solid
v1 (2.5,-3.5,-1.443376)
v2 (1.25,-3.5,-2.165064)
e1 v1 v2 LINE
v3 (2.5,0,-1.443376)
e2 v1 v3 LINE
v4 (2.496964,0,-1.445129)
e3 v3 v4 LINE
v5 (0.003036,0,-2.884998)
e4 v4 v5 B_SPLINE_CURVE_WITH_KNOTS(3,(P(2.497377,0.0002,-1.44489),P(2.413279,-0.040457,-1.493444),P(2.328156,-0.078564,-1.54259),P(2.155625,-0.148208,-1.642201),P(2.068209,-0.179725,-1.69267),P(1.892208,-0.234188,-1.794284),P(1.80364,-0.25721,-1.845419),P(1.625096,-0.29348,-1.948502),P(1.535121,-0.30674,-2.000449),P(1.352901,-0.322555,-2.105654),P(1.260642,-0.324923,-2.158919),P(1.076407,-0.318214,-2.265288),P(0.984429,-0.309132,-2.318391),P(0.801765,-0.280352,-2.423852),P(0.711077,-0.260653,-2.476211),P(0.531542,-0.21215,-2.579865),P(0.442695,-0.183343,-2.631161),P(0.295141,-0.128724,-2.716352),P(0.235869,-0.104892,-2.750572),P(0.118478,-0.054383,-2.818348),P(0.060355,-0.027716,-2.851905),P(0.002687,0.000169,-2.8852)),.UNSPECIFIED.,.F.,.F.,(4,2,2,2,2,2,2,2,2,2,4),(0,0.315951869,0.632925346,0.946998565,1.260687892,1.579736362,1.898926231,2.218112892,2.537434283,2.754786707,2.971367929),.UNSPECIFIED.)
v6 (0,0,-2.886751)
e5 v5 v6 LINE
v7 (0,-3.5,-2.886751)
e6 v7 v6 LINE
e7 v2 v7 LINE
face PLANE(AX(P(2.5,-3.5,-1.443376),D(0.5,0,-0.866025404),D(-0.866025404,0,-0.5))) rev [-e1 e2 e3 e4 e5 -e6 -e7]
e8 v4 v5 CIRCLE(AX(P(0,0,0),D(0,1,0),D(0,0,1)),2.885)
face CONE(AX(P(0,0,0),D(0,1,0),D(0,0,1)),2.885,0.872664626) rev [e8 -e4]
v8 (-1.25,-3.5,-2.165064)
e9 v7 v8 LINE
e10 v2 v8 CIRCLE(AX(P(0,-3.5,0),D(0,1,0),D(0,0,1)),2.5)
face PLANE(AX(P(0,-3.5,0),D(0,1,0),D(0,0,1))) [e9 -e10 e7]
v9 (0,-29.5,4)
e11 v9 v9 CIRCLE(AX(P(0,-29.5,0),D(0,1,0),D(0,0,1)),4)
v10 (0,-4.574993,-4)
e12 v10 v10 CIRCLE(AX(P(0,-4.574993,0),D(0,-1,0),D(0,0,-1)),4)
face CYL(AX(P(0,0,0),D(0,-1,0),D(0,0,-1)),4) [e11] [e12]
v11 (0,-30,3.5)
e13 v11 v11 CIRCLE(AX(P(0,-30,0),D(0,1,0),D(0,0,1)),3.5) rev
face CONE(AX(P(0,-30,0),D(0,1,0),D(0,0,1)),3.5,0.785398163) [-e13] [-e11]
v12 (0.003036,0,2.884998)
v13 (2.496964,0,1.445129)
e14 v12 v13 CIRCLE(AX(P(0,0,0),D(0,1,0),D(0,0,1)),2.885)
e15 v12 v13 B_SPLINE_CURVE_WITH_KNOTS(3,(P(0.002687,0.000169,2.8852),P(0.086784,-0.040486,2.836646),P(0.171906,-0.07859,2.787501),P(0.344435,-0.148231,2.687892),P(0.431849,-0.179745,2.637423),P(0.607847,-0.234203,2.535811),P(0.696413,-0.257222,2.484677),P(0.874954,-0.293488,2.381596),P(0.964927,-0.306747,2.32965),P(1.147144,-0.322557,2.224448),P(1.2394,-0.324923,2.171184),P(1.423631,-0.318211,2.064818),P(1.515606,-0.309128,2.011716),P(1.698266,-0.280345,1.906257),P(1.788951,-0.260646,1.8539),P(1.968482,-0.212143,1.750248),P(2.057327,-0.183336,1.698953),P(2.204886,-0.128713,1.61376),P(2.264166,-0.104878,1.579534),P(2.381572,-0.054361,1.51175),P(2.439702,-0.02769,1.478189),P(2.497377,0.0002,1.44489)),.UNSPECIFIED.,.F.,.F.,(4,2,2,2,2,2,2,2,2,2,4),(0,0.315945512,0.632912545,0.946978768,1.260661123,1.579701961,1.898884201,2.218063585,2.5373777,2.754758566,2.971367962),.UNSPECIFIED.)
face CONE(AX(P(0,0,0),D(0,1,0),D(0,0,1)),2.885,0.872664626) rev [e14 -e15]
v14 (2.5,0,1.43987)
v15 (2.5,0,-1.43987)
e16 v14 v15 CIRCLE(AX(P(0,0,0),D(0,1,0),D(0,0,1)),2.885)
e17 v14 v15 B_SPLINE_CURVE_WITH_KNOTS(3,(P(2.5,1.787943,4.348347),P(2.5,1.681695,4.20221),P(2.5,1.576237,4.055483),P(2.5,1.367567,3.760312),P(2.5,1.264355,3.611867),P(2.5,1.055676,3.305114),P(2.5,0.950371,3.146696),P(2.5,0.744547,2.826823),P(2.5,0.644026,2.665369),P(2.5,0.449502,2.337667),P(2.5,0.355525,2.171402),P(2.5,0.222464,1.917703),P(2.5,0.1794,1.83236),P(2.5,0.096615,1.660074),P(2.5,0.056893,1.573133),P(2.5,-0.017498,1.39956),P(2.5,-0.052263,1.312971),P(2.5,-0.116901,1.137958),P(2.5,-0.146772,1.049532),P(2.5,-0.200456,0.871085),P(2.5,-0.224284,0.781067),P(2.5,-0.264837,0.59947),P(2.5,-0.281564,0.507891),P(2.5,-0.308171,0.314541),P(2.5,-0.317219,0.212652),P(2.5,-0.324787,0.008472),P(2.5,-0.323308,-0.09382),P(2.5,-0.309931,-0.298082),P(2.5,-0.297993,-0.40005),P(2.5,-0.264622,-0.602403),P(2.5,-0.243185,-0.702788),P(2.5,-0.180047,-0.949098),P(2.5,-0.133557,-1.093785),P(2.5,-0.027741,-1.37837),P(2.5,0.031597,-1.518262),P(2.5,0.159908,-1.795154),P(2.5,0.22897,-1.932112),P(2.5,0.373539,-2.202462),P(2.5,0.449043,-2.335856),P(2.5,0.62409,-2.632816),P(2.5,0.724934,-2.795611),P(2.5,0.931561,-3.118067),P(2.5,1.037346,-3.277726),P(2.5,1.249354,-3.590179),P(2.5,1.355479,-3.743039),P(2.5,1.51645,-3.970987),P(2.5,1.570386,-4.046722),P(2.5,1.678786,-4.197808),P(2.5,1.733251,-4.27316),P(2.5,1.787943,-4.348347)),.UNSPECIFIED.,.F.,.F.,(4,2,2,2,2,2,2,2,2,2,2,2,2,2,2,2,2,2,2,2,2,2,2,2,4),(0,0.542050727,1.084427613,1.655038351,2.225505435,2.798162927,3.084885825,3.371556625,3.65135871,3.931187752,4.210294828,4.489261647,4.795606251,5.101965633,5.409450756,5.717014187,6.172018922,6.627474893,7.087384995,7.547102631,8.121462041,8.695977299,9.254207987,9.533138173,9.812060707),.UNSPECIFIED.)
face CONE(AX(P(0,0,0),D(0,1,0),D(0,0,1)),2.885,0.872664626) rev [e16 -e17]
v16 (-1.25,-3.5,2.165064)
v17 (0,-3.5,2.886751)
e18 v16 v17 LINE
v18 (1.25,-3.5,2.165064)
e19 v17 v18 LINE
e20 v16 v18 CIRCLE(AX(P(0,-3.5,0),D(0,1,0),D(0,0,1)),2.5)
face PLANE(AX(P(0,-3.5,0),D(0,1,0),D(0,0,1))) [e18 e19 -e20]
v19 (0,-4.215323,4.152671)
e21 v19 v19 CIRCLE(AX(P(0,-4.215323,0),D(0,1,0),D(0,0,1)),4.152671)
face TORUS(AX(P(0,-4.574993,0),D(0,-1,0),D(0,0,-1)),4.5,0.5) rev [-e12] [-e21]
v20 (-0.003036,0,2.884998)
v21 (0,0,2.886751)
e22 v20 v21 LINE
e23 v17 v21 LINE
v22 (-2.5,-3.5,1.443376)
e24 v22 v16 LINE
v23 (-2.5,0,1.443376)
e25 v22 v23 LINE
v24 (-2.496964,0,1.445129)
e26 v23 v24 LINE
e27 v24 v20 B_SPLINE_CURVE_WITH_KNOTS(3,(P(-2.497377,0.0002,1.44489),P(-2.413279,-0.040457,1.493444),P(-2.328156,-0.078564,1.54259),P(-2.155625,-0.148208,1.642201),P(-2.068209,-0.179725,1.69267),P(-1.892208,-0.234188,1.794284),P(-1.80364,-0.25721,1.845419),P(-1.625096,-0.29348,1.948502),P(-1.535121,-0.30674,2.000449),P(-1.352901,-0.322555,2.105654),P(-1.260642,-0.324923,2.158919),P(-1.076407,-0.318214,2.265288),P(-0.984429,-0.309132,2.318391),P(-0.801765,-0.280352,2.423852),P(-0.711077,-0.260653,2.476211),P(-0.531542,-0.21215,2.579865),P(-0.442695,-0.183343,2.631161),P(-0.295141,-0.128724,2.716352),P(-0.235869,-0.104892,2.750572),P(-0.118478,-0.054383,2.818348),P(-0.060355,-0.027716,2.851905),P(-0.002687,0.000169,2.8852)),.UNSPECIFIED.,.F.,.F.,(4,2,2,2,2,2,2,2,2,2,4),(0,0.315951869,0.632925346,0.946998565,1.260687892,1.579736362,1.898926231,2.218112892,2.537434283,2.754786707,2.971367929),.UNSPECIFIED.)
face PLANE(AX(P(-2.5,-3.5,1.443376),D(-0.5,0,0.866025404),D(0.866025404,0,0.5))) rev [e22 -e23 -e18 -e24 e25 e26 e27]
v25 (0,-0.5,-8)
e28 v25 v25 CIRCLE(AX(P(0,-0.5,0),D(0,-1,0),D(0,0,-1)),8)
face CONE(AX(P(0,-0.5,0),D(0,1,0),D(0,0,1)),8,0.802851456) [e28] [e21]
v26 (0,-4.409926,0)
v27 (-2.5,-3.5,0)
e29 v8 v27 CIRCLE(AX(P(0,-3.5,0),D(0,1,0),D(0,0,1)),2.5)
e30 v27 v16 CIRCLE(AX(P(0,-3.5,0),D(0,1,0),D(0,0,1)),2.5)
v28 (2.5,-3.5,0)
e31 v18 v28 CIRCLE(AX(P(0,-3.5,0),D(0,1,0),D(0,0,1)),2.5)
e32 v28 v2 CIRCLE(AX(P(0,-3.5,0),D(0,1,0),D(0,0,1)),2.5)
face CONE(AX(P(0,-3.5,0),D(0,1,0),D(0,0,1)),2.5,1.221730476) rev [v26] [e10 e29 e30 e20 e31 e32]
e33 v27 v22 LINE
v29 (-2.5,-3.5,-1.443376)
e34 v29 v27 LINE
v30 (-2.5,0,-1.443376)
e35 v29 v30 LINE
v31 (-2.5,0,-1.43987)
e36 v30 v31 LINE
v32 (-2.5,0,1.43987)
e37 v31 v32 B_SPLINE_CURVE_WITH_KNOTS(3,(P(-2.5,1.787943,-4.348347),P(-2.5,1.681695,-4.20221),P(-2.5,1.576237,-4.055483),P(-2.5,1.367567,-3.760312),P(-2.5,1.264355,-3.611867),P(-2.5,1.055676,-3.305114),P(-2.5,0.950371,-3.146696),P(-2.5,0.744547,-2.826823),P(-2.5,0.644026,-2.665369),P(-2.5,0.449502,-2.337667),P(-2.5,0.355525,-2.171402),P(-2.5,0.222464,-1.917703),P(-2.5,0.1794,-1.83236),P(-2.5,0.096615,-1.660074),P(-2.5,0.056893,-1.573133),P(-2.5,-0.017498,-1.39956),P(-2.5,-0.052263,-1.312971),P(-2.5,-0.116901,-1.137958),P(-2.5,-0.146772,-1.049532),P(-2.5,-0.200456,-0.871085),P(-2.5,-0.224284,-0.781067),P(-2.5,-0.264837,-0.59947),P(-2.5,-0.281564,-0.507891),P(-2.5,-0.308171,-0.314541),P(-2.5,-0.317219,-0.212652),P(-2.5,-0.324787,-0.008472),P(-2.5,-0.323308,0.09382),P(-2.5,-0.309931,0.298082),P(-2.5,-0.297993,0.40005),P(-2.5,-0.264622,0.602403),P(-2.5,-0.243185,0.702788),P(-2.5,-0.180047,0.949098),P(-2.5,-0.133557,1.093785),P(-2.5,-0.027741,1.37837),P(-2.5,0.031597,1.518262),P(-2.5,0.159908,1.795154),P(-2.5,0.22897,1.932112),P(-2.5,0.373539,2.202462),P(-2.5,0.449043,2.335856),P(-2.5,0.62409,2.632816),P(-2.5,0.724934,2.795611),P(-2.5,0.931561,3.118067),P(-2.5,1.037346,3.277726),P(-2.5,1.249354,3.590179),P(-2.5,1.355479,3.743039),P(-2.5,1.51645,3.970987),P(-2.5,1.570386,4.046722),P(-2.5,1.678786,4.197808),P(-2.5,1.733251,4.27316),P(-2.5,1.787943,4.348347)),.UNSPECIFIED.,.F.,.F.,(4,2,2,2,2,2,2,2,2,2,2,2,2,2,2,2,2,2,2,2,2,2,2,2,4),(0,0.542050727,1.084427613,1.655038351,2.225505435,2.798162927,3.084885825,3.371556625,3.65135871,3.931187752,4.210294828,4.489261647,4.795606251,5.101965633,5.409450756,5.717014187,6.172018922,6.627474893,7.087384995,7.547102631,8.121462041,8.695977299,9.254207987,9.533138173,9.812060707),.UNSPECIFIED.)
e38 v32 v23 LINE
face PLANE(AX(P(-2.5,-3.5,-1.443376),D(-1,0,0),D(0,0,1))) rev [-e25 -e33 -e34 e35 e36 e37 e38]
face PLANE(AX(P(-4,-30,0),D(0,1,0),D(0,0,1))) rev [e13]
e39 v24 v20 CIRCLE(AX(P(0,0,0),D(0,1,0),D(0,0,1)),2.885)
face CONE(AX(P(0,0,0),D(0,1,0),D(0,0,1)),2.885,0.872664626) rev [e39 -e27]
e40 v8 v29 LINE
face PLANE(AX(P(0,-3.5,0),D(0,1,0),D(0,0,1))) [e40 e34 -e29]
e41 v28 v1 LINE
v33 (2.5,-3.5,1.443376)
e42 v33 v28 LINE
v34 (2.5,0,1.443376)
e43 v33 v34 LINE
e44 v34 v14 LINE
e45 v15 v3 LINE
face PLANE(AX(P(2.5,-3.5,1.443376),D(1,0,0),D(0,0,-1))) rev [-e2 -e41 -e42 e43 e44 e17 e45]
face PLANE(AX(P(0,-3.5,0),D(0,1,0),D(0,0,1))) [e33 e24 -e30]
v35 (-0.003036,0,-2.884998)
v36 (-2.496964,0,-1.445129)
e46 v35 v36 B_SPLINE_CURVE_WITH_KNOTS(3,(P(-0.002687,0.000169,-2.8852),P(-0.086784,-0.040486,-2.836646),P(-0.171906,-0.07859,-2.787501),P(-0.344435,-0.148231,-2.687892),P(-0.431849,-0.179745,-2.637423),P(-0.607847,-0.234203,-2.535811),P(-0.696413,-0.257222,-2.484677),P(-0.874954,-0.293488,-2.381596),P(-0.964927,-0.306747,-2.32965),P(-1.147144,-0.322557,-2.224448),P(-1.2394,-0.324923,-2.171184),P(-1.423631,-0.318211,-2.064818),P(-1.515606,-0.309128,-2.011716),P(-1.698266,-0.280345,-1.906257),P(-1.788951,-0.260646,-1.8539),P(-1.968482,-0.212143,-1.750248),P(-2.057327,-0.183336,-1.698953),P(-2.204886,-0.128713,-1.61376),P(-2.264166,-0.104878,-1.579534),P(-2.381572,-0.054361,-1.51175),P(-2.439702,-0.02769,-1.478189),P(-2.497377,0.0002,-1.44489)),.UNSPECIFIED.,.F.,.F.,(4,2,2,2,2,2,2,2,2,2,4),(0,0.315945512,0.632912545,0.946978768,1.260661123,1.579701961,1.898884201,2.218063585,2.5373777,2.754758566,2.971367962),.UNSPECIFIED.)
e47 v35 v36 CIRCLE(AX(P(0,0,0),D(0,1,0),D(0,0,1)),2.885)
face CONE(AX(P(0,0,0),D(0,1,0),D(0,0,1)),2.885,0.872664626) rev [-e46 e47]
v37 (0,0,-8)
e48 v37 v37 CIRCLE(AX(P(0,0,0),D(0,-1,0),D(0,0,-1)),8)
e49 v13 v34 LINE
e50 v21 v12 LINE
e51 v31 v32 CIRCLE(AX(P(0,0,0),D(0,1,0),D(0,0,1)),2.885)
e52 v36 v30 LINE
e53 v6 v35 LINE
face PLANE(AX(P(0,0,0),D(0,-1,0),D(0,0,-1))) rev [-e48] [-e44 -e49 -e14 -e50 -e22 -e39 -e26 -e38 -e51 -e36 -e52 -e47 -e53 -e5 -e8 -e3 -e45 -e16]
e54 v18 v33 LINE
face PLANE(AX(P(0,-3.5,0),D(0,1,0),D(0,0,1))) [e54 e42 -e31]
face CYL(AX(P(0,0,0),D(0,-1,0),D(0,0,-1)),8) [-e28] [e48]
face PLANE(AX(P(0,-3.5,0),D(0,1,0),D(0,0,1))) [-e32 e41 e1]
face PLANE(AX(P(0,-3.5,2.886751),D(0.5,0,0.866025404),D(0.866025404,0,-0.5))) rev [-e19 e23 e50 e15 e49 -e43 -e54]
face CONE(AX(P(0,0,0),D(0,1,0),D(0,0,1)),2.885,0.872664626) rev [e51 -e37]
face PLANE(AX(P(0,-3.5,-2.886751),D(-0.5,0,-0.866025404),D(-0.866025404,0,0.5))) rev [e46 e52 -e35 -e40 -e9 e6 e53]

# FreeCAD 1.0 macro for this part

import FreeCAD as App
import Part
import Sketcher

V = App.Vector
Q = App.Units.Quantity


def edges_at(feature, points):
    """Names of the edges that pass closest to the given points."""
    edges = feature.Shape.Edges
    near = lambda p: min(range(len(edges)), key=lambda i: edges[i].distToShape(Part.Vertex(*p))[0])
    return sorted({f"Edge{near(p) + 1}" for p in points})

doc = App.newDocument("Part")
params = doc.addObject("Spreadsheet::Sheet", "Params")
for row, (alias, value) in enumerate([
    ("sketch1_width", "8 mm"),
    ("sketch1_width2", "4 mm"),
    ("sketch1_height", "30 mm"),
    ("sketch1_height2", "0.5 mm"),
    ("revolution_angle", "360 deg"),
    ("pocket1_length", "3.5 mm"),
    ("groove_angle", "360 deg"),
    ("fillet_radius", "0.5 mm"),
    ("chamfer_size", "0.5 mm"),
], start=1):
    params.set(f"A{row}", alias)
    params.set(f"B{row}", "=" + value)
    params.setAlias(f"B{row}", alias)

body = doc.addObject("PartDesign::Body", "Body")

# Sketch on XY plane
sketch1 = doc.addObject("Sketcher::SketchObject", "Sketch")
body.addObject(sketch1)
sketch1.AttachmentSupport = (doc.XY_Plane, [""])
sketch1.MapMode = "FlatFace"
sketch1.addGeometry([
    Part.LineSegment(V(0, 0, 0), V(-8, 0, 0)),  # 0
    Part.LineSegment(V(-8, 0, 0), V(-8, -0.5, 0)),  # 1
    Part.LineSegment(V(-8, -0.5, 0), V(-4, -4.4, 0)),  # 2
    Part.LineSegment(V(-4, -4.4, 0), V(-4, -30, 0)),  # 3
    Part.LineSegment(V(-4, -30, 0), V(0, -30, 0)),  # 4
    Part.LineSegment(V(0, -30, 0), V(0, 0, 0)),  # 5
], False)
sketch1.addConstraint([
    Sketcher.Constraint("Coincident", 0, 2, 1, 1),
    Sketcher.Constraint("Coincident", 1, 2, 2, 1),
    Sketcher.Constraint("Coincident", 2, 2, 3, 1),
    Sketcher.Constraint("Coincident", 3, 2, 4, 1),
    Sketcher.Constraint("Coincident", 4, 2, 5, 1),
    Sketcher.Constraint("Coincident", 5, 2, 0, 1),
    Sketcher.Constraint("Horizontal", 0),
    Sketcher.Constraint("Vertical", 1),
    Sketcher.Constraint("Vertical", 3),
    Sketcher.Constraint("Horizontal", 4),
    Sketcher.Constraint("Vertical", 5),
    Sketcher.Constraint("Coincident", 5, 2, -1, 1),
    Sketcher.Constraint("DistanceX", 0, 2, 0, 1, 8.0),
    Sketcher.Constraint("DistanceX", 4, 1, 4, 2, 4.0),
    Sketcher.Constraint("DistanceY", 5, 1, 5, 2, 30.0),
    Sketcher.Constraint("Angle", 2, Q("-44 deg")),
    Sketcher.Constraint("DistanceY", 1, 2, 1, 1, 0.5),
])
sketch1.setExpression("Constraints[12]", "Params.sketch1_width")
sketch1.setExpression("Constraints[13]", "Params.sketch1_width2")
sketch1.setExpression("Constraints[14]", "Params.sketch1_height")
sketch1.setExpression("Constraints[16]", "Params.sketch1_height2")
revolution = doc.addObject("PartDesign::Revolution", "Revolution")
body.addObject(revolution)
revolution.Profile = sketch1
revolution.ReferenceAxis = (sketch1, ["V_Axis"])
revolution.setExpression("Angle", "Params.revolution_angle")

# Sketch on XZ plane
sketch2 = doc.addObject("Sketcher::SketchObject", "Sketch001")
body.addObject(sketch2)
sketch2.AttachmentSupport = (doc.XZ_Plane, [""])
sketch2.MapMode = "FlatFace"
sketch2.addGeometry([
    Part.LineSegment(V(0, -2.9, 0), V(-2.5, -1.4, 0)),  # 0
    Part.LineSegment(V(-2.5, -1.4, 0), V(-2.5, 1.4, 0)),  # 1
    Part.LineSegment(V(-2.5, 1.4, 0), V(0, 2.9, 0)),  # 2
    Part.LineSegment(V(0, 2.9, 0), V(2.5, 1.4, 0)),  # 3
    Part.LineSegment(V(2.5, 1.4, 0), V(2.5, -1.4, 0)),  # 4
    Part.LineSegment(V(2.5, -1.4, 0), V(0, -2.9, 0)),  # 5
], False)
sketch2.addConstraint([
    Sketcher.Constraint("Coincident", 0, 2, 1, 1),
    Sketcher.Constraint("Coincident", 1, 2, 2, 1),
    Sketcher.Constraint("Coincident", 2, 2, 3, 1),
    Sketcher.Constraint("Coincident", 3, 2, 4, 1),
    Sketcher.Constraint("Coincident", 4, 2, 5, 1),
    Sketcher.Constraint("Coincident", 5, 2, 0, 1),
    Sketcher.Constraint("Vertical", 1),
    Sketcher.Constraint("Vertical", 4),
    Sketcher.Constraint("Symmetric", 0, 2, 3, 2, -1, 1),
    Sketcher.Constraint("Symmetric", 2, 2, 5, 2, -1, 1),
    Sketcher.Constraint("PointOnObject", 2, 2, -2),
    Sketcher.Constraint("Parallel", 2, 5),
    Sketcher.Constraint("Horizontal", 1, 2, 3, 2),
    Sketcher.Constraint("Angle", 0, Q("150 deg")),
    Sketcher.Constraint("DistanceX", 1, 2, 3, 2, 5.0),
    Sketcher.Constraint("DistanceY", 1, 1, 1, 2, 2.886751),
])
pocket1 = doc.addObject("PartDesign::Pocket", "Pocket")
body.addObject(pocket1)
pocket1.Profile = sketch2
pocket1.setExpression("Length", "Params.pocket1_length")
pocket1.Reversed = True

# Sketch on XY plane
sketch3 = doc.addObject("Sketcher::SketchObject", "Sketch002")
body.addObject(sketch3)
sketch3.AttachmentSupport = (doc.XY_Plane, [""])
sketch3.MapMode = "FlatFace"
sketch3.addGeometry([
    Part.LineSegment(V(-2.9, 0, 0), V(-2.5, -0.3, 0)),  # 0
    Part.LineSegment(V(-2.5, -0.3, 0), V(-2.5, -3.5, 0)),  # 1
    Part.LineSegment(V(-2.5, -3.5, 0), V(0, -4.4, 0)),  # 2
    Part.LineSegment(V(0, -4.4, 0), V(0, 0, 0)),  # 3
    Part.LineSegment(V(0, 0, 0), V(-2.9, 0, 0)),  # 4
], False)
sketch3.addConstraint([
    Sketcher.Constraint("Coincident", 0, 2, 1, 1),
    Sketcher.Constraint("Coincident", 1, 2, 2, 1),
    Sketcher.Constraint("Coincident", 2, 2, 3, 1),
    Sketcher.Constraint("Coincident", 3, 2, 4, 1),
    Sketcher.Constraint("Coincident", 4, 2, 0, 1),
    Sketcher.Constraint("Vertical", 1),
    Sketcher.Constraint("Vertical", 3),
    Sketcher.Constraint("Horizontal", 4),
    Sketcher.Constraint("Coincident", 3, 2, -1, 1),
    Sketcher.Constraint("Angle", 0, Q("-40 deg")),
    Sketcher.Constraint("Angle", 2, Q("-20 deg")),
    Sketcher.Constraint("DistanceX", 0, 2, -1, 1, 2.5),
    Sketcher.Constraint("DistanceY", 1, 2, -1, 1, 3.5),
    Sketcher.Constraint("DistanceX", 4, 2, 4, 1, 2.885),
])
groove = doc.addObject("PartDesign::Groove", "Groove")
body.addObject(groove)
groove.Profile = sketch3
groove.ReferenceAxis = (sketch3, ["V_Axis"])
groove.setExpression("Angle", "Params.groove_angle")
doc.recompute()

fillet = doc.addObject("PartDesign::Fillet", "Fillet")
body.addObject(fillet)
fillet.Base = (groove, edges_at(groove, [(0, -4.363, 4)]))
fillet.setExpression("Radius", "Params.fillet_radius")
doc.recompute()

chamfer = doc.addObject("PartDesign::Chamfer", "Chamfer")
body.addObject(chamfer)
chamfer.Base = (fillet, edges_at(fillet, [(0, -30, 4)]))
chamfer.setExpression("Size", "Params.chamfer_size")

doc.recompute()
